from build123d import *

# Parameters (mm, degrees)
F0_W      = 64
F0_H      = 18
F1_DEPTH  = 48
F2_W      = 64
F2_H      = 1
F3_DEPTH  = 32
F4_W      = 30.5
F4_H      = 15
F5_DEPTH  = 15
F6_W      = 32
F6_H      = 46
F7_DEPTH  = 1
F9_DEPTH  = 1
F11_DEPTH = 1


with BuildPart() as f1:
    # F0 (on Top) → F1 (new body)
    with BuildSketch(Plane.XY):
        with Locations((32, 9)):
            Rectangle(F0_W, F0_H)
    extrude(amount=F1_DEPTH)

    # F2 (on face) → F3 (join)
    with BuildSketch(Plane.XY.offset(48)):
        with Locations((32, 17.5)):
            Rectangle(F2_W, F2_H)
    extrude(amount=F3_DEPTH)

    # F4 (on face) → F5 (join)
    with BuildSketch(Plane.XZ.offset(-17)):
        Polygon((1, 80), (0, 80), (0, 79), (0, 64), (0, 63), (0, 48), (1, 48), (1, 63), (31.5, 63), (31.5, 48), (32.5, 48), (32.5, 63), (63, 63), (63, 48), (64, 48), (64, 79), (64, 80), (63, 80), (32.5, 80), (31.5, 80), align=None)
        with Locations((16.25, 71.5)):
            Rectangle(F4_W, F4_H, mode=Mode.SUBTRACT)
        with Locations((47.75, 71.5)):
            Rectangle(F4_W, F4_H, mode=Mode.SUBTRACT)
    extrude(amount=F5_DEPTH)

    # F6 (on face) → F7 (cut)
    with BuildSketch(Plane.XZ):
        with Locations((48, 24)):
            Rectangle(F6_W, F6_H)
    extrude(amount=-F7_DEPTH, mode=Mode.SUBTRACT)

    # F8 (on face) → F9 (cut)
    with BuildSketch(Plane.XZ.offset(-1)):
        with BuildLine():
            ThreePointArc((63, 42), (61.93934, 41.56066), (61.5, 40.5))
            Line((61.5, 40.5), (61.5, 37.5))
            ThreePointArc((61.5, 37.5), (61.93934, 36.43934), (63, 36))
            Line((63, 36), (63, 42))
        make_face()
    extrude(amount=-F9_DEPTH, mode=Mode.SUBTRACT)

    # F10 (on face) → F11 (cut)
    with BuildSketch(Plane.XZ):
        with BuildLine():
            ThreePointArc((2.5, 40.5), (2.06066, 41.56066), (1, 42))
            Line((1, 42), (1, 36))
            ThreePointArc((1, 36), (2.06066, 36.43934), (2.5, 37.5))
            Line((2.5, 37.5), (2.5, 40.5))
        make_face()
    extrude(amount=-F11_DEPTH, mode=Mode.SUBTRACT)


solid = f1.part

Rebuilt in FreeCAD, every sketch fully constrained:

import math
import FreeCAD as App
import Part
import Sketcher

V = App.Vector
Q = App.Units.Quantity

doc = App.newDocument("Part")
body = doc.addObject("PartDesign::Body", "Body")

sketch1 = body.newObject("Sketcher::SketchObject", "Sketch")
sketch1.AttachmentSupport = (doc.getObject("XY_Plane"), [""])
sketch1.MapMode = "FlatFace"
sketch1.addGeometry(Part.LineSegment(V(0, 18, 0), V(0, 0, 0)), False)
sketch1.addGeometry(Part.LineSegment(V(0, 0, 0), V(64, 0, 0)), False)
sketch1.addGeometry(Part.LineSegment(V(64, 0, 0), V(64, 18, 0)), False)
sketch1.addGeometry(Part.LineSegment(V(64, 18, 0), V(0, 18, 0)), False)
sketch1.addConstraint(Sketcher.Constraint("Coincident", 0, 2, 1, 1))
sketch1.addConstraint(Sketcher.Constraint("Coincident", 1, 2, 2, 1))
sketch1.addConstraint(Sketcher.Constraint("Coincident", 2, 2, 3, 1))
sketch1.addConstraint(Sketcher.Constraint("Coincident", 3, 2, 0, 1))
sketch1.addConstraint(Sketcher.Constraint("Vertical", 0))
sketch1.addConstraint(Sketcher.Constraint("Horizontal", 1))
sketch1.addConstraint(Sketcher.Constraint("Vertical", 2))
sketch1.addConstraint(Sketcher.Constraint("Horizontal", 3))
sketch1.addConstraint(Sketcher.Constraint("Coincident", 0, 2, -1, 1))
sketch1.addConstraint(Sketcher.Constraint("DistanceX", 1, 1, 1, 2, Q("64 mm")))
sketch1.addConstraint(Sketcher.Constraint("DistanceY", 0, 2, 0, 1, Q("18 mm")))
pad1 = body.newObject("PartDesign::Pad", "Pad")
pad1.Profile = sketch1
pad1.Length = 48

sketch2 = body.newObject("Sketcher::SketchObject", "Sketch001")
sketch2.AttachmentSupport = (doc.getObject("XY_Plane"), [""])
sketch2.MapMode = "FlatFace"
sketch2.AttachmentOffset = App.Placement(V(0, 0, 48), App.Rotation())
sketch2.addGeometry(Part.LineSegment(V(0, 18, 0), V(0, 17, 0)), False)
sketch2.addGeometry(Part.LineSegment(V(0, 17, 0), V(64, 17, 0)), False)
sketch2.addGeometry(Part.LineSegment(V(64, 17, 0), V(64, 18, 0)), False)
sketch2.addGeometry(Part.LineSegment(V(64, 18, 0), V(0, 18, 0)), False)
sketch2.addConstraint(Sketcher.Constraint("Coincident", 0, 2, 1, 1))
sketch2.addConstraint(Sketcher.Constraint("Coincident", 1, 2, 2, 1))
sketch2.addConstraint(Sketcher.Constraint("Coincident", 2, 2, 3, 1))
sketch2.addConstraint(Sketcher.Constraint("Coincident", 3, 2, 0, 1))
sketch2.addConstraint(Sketcher.Constraint("Vertical", 0))
sketch2.addConstraint(Sketcher.Constraint("Horizontal", 1))
sketch2.addConstraint(Sketcher.Constraint("Vertical", 2))
sketch2.addConstraint(Sketcher.Constraint("Horizontal", 3))
sketch2.addConstraint(Sketcher.Constraint("PointOnObject", 0, 2, -2))
sketch2.addConstraint(Sketcher.Constraint("DistanceX", 1, 1, 1, 2, Q("64 mm")))
sketch2.addConstraint(Sketcher.Constraint("DistanceY", 0, 2, 0, 1, Q("1 mm")))
sketch2.addConstraint(Sketcher.Constraint("DistanceY", -1, 1, 0, 2, Q("17 mm")))
pad2 = body.newObject("PartDesign::Pad", "Pad001")
pad2.Profile = sketch2
pad2.Length = 32

sketch3 = body.newObject("Sketcher::SketchObject", "Sketch002")
sketch3.AttachmentSupport = (doc.getObject("XZ_Plane"), [""])
sketch3.MapMode = "FlatFace"
sketch3.AttachmentOffset = App.Placement(V(0, 0, -17), App.Rotation())
sketch3.addGeometry(Part.LineSegment(V(0, 80, 0), V(0, 48, 0)), False)
sketch3.addGeometry(Part.LineSegment(V(0, 48, 0), V(1, 48, 0)), False)
sketch3.addGeometry(Part.LineSegment(V(1, 48, 0), V(1, 63, 0)), False)
sketch3.addGeometry(Part.LineSegment(V(1, 63, 0), V(31.5, 63, 0)), False)
sketch3.addGeometry(Part.LineSegment(V(31.5, 63, 0), V(31.5, 48, 0)), False)
sketch3.addGeometry(Part.LineSegment(V(31.5, 48, 0), V(32.5, 48, 0)), False)
sketch3.addGeometry(Part.LineSegment(V(32.5, 48, 0), V(32.5, 63, 0)), False)
sketch3.addGeometry(Part.LineSegment(V(32.5, 63, 0), V(63, 63, 0)), False)
sketch3.addGeometry(Part.LineSegment(V(63, 63, 0), V(63, 48, 0)), False)
sketch3.addGeometry(Part.LineSegment(V(63, 48, 0), V(64, 48, 0)), False)
sketch3.addGeometry(Part.LineSegment(V(64, 48, 0), V(64, 80, 0)), False)
sketch3.addGeometry(Part.LineSegment(V(64, 80, 0), V(0, 80, 0)), False)
sketch3.addGeometry(Part.LineSegment(V(31.5, 64, 0), V(1, 64, 0)), False)
sketch3.addGeometry(Part.LineSegment(V(1, 64, 0), V(1, 79, 0)), False)
sketch3.addGeometry(Part.LineSegment(V(1, 79, 0), V(31.5, 79, 0)), False)
sketch3.addGeometry(Part.LineSegment(V(31.5, 79, 0), V(31.5, 64, 0)), False)
sketch3.addGeometry(Part.LineSegment(V(63, 64, 0), V(32.5, 64, 0)), False)
sketch3.addGeometry(Part.LineSegment(V(32.5, 64, 0), V(32.5, 79, 0)), False)
sketch3.addGeometry(Part.LineSegment(V(32.5, 79, 0), V(63, 79, 0)), False)
sketch3.addGeometry(Part.LineSegment(V(63, 79, 0), V(63, 64, 0)), False)
sketch3.addConstraint(Sketcher.Constraint("Coincident", 0, 2, 1, 1))
sketch3.addConstraint(Sketcher.Constraint("Coincident", 1, 2, 2, 1))
sketch3.addConstraint(Sketcher.Constraint("Coincident", 2, 2, 3, 1))
sketch3.addConstraint(Sketcher.Constraint("Coincident", 3, 2, 4, 1))
sketch3.addConstraint(Sketcher.Constraint("Coincident", 4, 2, 5, 1))
sketch3.addConstraint(Sketcher.Constraint("Coincident", 5, 2, 6, 1))
sketch3.addConstraint(Sketcher.Constraint("Coincident", 6, 2, 7, 1))
sketch3.addConstraint(Sketcher.Constraint("Coincident", 7, 2, 8, 1))
sketch3.addConstraint(Sketcher.Constraint("Coincident", 8, 2, 9, 1))
sketch3.addConstraint(Sketcher.Constraint("Coincident", 9, 2, 10, 1))
sketch3.addConstraint(Sketcher.Constraint("Coincident", 10, 2, 11, 1))
sketch3.addConstraint(Sketcher.Constraint("Coincident", 11, 2, 0, 1))
sketch3.addConstraint(Sketcher.Constraint("Coincident", 12, 2, 13, 1))
sketch3.addConstraint(Sketcher.Constraint("Coincident", 13, 2, 14, 1))
sketch3.addConstraint(Sketcher.Constraint("Coincident", 14, 2, 15, 1))
sketch3.addConstraint(Sketcher.Constraint("Coincident", 15, 2, 12, 1))
sketch3.addConstraint(Sketcher.Constraint("Coincident", 16, 2, 17, 1))
sketch3.addConstraint(Sketcher.Constraint("Coincident", 17, 2, 18, 1))
sketch3.addConstraint(Sketcher.Constraint("Coincident", 18, 2, 19, 1))
sketch3.addConstraint(Sketcher.Constraint("Coincident", 19, 2, 16, 1))
sketch3.addConstraint(Sketcher.Constraint("Vertical", 0))
sketch3.addConstraint(Sketcher.Constraint("Horizontal", 1))
sketch3.addConstraint(Sketcher.Constraint("Vertical", 2))
sketch3.addConstraint(Sketcher.Constraint("Horizontal", 3))
sketch3.addConstraint(Sketcher.Constraint("Vertical", 4))
sketch3.addConstraint(Sketcher.Constraint("Horizontal", 5))
sketch3.addConstraint(Sketcher.Constraint("Vertical", 6))
sketch3.addConstraint(Sketcher.Constraint("Horizontal", 7))
sketch3.addConstraint(Sketcher.Constraint("Vertical", 8))
sketch3.addConstraint(Sketcher.Constraint("Horizontal", 9))
sketch3.addConstraint(Sketcher.Constraint("Vertical", 10))
sketch3.addConstraint(Sketcher.Constraint("Horizontal", 11))
sketch3.addConstraint(Sketcher.Constraint("Horizontal", 12))
sketch3.addConstraint(Sketcher.Constraint("Vertical", 13))
sketch3.addConstraint(Sketcher.Constraint("Horizontal", 14))
sketch3.addConstraint(Sketcher.Constraint("Vertical", 15))
sketch3.addConstraint(Sketcher.Constraint("Horizontal", 16))
sketch3.addConstraint(Sketcher.Constraint("Vertical", 17))
sketch3.addConstraint(Sketcher.Constraint("Horizontal", 18))
sketch3.addConstraint(Sketcher.Constraint("Vertical", 19))
sketch3.addConstraint(Sketcher.Constraint("PointOnObject", 0, 2, -2))
sketch3.addConstraint(Sketcher.Constraint("Horizontal", 1, 2, 4, 2))
sketch3.addConstraint(Sketcher.Constraint("Horizontal", 3, 2, 6, 2))
sketch3.addConstraint(Sketcher.Constraint("Horizontal", 5, 2, 8, 2))
sketch3.addConstraint(Sketcher.Constraint("Horizontal", 15, 2, 16, 2))
sketch3.addConstraint(Sketcher.Constraint("Horizontal", 14, 2, 17, 2))
sketch3.addConstraint(Sketcher.Constraint("Vertical", 2, 2, 12, 2))
sketch3.addConstraint(Sketcher.Constraint("Vertical", 4, 2, 14, 2))
sketch3.addConstraint(Sketcher.Constraint("Vertical", 6, 2, 16, 2))
sketch3.addConstraint(Sketcher.Constraint("Vertical", 8, 2, 18, 2))
sketch3.addConstraint(Sketcher.Constraint("Equal", 1, 5))
sketch3.addConstraint(Sketcher.Constraint("Equal", 3, 7))
sketch3.addConstraint(Sketcher.Constraint("Equal", 5, 9))
sketch3.addConstraint(Sketcher.Constraint("Equal", 8, 13))
sketch3.addConstraint(Sketcher.Constraint("DistanceX", 1, 1, 1, 2, Q("1 mm")))
sketch3.addConstraint(Sketcher.Constraint("DistanceX", 11, 2, 11, 1, Q("64 mm")))
sketch3.addConstraint(Sketcher.Constraint("DistanceY", 0, 2, 0, 1, Q("32 mm")))
sketch3.addConstraint(Sketcher.Constraint("DistanceY", 2, 1, 2, 2, Q("15 mm")))
sketch3.addConstraint(Sketcher.Constraint("DistanceY", -1, 1, 0, 2, Q("48 mm")))
sketch3.addConstraint(Sketcher.Constraint("DistanceY", -1, 1, 12, 2, Q("64 mm")))
pad3 = body.newObject("PartDesign::Pad", "Pad002")
pad3.Profile = sketch3
pad3.Length = 15

sketch4 = body.newObject("Sketcher::SketchObject", "Sketch003")
sketch4.AttachmentSupport = (doc.getObject("XZ_Plane"), [""])
sketch4.MapMode = "FlatFace"
sketch4.addGeometry(Part.LineSegment(V(32, 47, 0), V(32, 1, 0)), False)
sketch4.addGeometry(Part.LineSegment(V(32, 1, 0), V(64, 1, 0)), False)
sketch4.addGeometry(Part.LineSegment(V(64, 1, 0), V(64, 47, 0)), False)
sketch4.addGeometry(Part.LineSegment(V(64, 47, 0), V(32, 47, 0)), False)
sketch4.addConstraint(Sketcher.Constraint("Coincident", 0, 2, 1, 1))
sketch4.addConstraint(Sketcher.Constraint("Coincident", 1, 2, 2, 1))
sketch4.addConstraint(Sketcher.Constraint("Coincident", 2, 2, 3, 1))
sketch4.addConstraint(Sketcher.Constraint("Coincident", 3, 2, 0, 1))
sketch4.addConstraint(Sketcher.Constraint("Vertical", 0))
sketch4.addConstraint(Sketcher.Constraint("Horizontal", 1))
sketch4.addConstraint(Sketcher.Constraint("Vertical", 2))
sketch4.addConstraint(Sketcher.Constraint("Horizontal", 3))
sketch4.addConstraint(Sketcher.Constraint("DistanceX", 1, 1, 1, 2, Q("32 mm")))
sketch4.addConstraint(Sketcher.Constraint("DistanceY", 0, 2, 0, 1, Q("46 mm")))
sketch4.addConstraint(Sketcher.Constraint("DistanceX", -1, 1, 0, 2, Q("32 mm")))
sketch4.addConstraint(Sketcher.Constraint("DistanceY", -1, 1, 0, 2, Q("1 mm")))
pocket1 = body.newObject("PartDesign::Pocket", "Pocket")
pocket1.Profile = sketch4
pocket1.Length = 1

sketch5 = body.newObject("Sketcher::SketchObject", "Sketch004")
sketch5.AttachmentSupport = (doc.getObject("XZ_Plane"), [""])
sketch5.MapMode = "FlatFace"
sketch5.AttachmentOffset = App.Placement(V(0, 0, -1), App.Rotation())
sketch5.addGeometry(Part.ArcOfCircle(Part.Circle(V(63, 40.5, 0), V(0, 0, 1), 1.5), math.radians(90), math.radians(180)), False)
sketch5.addGeometry(Part.LineSegment(V(61.5, 40.5, 0), V(61.5, 37.5, 0)), False)
sketch5.addGeometry(Part.ArcOfCircle(Part.Circle(V(63, 37.5, 0), V(0, 0, 1), 1.5), math.radians(-180), math.radians(-90)), False)
sketch5.addGeometry(Part.LineSegment(V(63, 36, 0), V(63, 42, 0)), False)
sketch5.addConstraint(Sketcher.Constraint("Tangent", 0, 2, 1, 1))
sketch5.addConstraint(Sketcher.Constraint("Tangent", 1, 2, 2, 1))
sketch5.addConstraint(Sketcher.Constraint("Coincident", 2, 2, 3, 1))
sketch5.addConstraint(Sketcher.Constraint("Coincident", 3, 2, 0, 1))
sketch5.addConstraint(Sketcher.Constraint("Vertical", 1))
sketch5.addConstraint(Sketcher.Constraint("Vertical", 3))
sketch5.addConstraint(Sketcher.Constraint("Equal", 0, 2))
sketch5.addConstraint(Sketcher.Constraint("Vertical", 0, 3, 2, 2))
sketch5.addConstraint(Sketcher.Constraint("Radius", 0, Q("1.500001 mm")))
sketch5.addConstraint(Sketcher.Constraint("DistanceY", 1, 2, 1, 1, Q("3 mm")))
sketch5.addConstraint(Sketcher.Constraint("DistanceX", -1, 1, 0, 3, Q("63.000001 mm")))
sketch5.addConstraint(Sketcher.Constraint("DistanceY", -1, 1, 2, 2, Q("36 mm")))
pocket2 = body.newObject("PartDesign::Pocket", "Pocket001")
pocket2.Profile = sketch5
pocket2.Length = 1

sketch6 = body.newObject("Sketcher::SketchObject", "Sketch005")
sketch6.AttachmentSupport = (doc.getObject("XZ_Plane"), [""])
sketch6.MapMode = "FlatFace"
sketch6.addGeometry(Part.ArcOfCircle(Part.Circle(V(1, 40.5, 0), V(0, 0, 1), 1.5), math.radians(0), math.radians(90)), False)
sketch6.addGeometry(Part.LineSegment(V(1, 42, 0), V(1, 36, 0)), False)
sketch6.addGeometry(Part.ArcOfCircle(Part.Circle(V(1, 37.5, 0), V(0, 0, 1), 1.5), math.radians(-90), math.radians(0)), False)
sketch6.addGeometry(Part.LineSegment(V(2.5, 37.5, 0), V(2.5, 40.5, 0)), False)
sketch6.addConstraint(Sketcher.Constraint("Coincident", 0, 2, 1, 1))
sketch6.addConstraint(Sketcher.Constraint("Coincident", 1, 2, 2, 1))
sketch6.addConstraint(Sketcher.Constraint("Tangent", 2, 2, 3, 1))
sketch6.addConstraint(Sketcher.Constraint("Tangent", 3, 2, 0, 1))
sketch6.addConstraint(Sketcher.Constraint("Vertical", 1))
sketch6.addConstraint(Sketcher.Constraint("Vertical", 3))
sketch6.addConstraint(Sketcher.Constraint("Equal", 0, 2))
sketch6.addConstraint(Sketcher.Constraint("Vertical", 2, 3, 0, 2))
sketch6.addConstraint(Sketcher.Constraint("Radius", 0, Q("1.500001 mm")))
sketch6.addConstraint(Sketcher.Constraint("DistanceY", 1, 2, 1, 1, Q("6 mm")))
sketch6.addConstraint(Sketcher.Constraint("DistanceX", -1, 1, 0, 3, Q("0.999999 mm")))
sketch6.addConstraint(Sketcher.Constraint("DistanceY", -1, 1, 0, 2, Q("42 mm")))
pocket3 = body.newObject("PartDesign::Pocket", "Pocket002")
pocket3.Profile = sketch6
pocket3.Length = 1

doc.recompute()
